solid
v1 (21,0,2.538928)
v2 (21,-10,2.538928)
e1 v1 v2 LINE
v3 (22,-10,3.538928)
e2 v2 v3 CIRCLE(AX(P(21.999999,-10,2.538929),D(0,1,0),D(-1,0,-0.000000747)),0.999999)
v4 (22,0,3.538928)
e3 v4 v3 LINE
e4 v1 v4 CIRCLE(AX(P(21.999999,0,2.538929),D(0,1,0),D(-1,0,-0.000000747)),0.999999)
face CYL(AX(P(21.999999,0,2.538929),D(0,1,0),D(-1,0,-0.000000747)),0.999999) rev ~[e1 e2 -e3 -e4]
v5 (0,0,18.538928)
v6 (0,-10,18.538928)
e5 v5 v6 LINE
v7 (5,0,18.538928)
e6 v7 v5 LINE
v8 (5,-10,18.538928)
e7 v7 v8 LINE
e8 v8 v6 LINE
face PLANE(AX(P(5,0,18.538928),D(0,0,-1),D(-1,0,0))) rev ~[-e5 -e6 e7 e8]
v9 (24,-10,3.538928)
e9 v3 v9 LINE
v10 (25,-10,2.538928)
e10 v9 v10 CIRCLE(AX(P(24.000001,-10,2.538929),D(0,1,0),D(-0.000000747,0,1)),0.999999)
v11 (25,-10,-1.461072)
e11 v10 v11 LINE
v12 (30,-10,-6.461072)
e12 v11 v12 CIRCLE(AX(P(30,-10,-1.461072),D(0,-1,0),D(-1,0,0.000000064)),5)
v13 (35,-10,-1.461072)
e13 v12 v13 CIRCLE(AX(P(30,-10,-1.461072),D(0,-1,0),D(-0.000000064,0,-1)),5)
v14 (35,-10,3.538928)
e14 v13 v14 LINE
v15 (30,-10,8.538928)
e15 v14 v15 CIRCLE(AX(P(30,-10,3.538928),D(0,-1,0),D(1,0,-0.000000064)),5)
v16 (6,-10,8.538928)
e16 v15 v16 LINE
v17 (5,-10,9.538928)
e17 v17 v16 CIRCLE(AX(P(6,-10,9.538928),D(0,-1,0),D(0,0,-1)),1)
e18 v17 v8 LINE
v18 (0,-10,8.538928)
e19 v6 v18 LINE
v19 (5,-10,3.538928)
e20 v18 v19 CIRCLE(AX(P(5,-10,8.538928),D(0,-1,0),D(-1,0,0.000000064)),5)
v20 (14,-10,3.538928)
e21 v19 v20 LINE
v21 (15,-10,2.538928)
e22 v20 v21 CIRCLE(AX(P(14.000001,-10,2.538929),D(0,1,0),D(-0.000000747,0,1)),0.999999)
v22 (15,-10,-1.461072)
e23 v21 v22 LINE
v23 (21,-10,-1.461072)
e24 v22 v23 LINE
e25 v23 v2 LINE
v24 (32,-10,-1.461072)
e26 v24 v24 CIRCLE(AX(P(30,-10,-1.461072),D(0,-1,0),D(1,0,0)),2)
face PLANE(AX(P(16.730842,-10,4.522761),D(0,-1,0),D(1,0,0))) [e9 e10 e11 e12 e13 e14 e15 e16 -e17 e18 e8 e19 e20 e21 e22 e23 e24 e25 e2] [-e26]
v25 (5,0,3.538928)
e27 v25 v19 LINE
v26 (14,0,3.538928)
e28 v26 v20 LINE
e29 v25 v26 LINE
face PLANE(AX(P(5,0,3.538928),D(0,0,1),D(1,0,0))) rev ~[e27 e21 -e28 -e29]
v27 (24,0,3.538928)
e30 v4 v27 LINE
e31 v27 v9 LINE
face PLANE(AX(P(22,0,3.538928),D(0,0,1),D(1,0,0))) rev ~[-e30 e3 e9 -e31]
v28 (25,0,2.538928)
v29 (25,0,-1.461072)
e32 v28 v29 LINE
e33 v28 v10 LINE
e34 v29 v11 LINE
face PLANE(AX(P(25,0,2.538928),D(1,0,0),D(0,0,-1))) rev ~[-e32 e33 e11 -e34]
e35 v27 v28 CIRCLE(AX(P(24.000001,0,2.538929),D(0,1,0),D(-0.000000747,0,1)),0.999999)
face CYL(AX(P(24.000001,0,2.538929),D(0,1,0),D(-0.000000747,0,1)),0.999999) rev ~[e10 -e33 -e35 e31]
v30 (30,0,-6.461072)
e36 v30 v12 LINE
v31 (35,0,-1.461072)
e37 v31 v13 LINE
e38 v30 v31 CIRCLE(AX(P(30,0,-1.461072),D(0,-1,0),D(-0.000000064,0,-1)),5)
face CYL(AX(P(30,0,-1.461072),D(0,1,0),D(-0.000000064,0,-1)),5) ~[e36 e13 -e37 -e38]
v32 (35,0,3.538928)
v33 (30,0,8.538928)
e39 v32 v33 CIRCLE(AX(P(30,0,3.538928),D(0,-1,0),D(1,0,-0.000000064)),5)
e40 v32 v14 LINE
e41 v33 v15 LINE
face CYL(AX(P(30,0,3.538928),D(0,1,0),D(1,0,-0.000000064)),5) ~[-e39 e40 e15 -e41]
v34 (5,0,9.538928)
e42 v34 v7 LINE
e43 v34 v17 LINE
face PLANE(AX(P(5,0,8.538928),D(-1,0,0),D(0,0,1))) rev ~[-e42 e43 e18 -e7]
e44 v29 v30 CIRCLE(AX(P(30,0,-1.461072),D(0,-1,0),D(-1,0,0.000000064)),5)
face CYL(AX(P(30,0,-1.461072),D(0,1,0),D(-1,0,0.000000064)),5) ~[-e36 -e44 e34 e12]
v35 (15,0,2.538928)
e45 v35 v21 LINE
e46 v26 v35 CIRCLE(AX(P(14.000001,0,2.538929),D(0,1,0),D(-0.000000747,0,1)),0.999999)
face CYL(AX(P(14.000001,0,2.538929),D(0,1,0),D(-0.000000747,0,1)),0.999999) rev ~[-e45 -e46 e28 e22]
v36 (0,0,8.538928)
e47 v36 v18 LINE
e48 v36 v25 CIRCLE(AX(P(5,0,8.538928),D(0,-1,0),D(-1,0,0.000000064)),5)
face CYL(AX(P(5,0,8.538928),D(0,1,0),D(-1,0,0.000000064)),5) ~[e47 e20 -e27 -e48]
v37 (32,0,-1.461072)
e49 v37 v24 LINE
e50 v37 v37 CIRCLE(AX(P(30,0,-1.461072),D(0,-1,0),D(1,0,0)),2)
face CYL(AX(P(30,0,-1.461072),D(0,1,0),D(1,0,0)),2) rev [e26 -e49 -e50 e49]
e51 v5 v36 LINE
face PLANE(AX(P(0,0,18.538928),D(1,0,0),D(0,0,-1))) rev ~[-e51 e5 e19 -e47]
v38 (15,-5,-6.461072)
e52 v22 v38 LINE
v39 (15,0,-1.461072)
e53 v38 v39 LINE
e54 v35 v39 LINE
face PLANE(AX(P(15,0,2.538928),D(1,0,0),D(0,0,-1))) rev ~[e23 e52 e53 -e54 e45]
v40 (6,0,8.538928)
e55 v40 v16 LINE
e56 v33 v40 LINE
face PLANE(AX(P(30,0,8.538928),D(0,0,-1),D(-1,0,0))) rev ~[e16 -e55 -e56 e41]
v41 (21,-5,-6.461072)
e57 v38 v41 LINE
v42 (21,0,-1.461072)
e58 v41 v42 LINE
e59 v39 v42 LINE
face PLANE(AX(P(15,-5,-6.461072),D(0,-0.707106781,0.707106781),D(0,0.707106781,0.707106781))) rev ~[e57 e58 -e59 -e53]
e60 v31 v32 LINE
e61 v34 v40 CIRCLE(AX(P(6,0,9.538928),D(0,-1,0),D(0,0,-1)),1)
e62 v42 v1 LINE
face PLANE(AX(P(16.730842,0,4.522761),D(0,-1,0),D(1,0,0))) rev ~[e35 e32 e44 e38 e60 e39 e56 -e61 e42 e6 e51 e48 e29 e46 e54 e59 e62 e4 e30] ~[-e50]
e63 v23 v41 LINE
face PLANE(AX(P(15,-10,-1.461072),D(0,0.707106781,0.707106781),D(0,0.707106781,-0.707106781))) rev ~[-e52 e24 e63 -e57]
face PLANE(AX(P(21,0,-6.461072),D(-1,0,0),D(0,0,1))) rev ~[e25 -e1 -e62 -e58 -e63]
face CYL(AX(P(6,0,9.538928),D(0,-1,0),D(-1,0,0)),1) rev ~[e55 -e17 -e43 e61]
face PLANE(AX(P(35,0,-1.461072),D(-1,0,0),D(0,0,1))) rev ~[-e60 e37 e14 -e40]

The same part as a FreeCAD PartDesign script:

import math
import FreeCAD as App
import Part
import Sketcher
from FreeCAD import Vector
Q = App.Units.Quantity


def edges_at(feature, points):
    """Names of the edges that pass closest to the given points."""
    edges = feature.Shape.Edges
    near = lambda p: min(range(len(edges)), key=lambda i: edges[i].distToShape(Part.Vertex(*p))[0])
    return sorted({f"Edge{near(p) + 1}" for p in points})

doc = App.newDocument("Part")
body = doc.addObject("PartDesign::Body", "Body")

# Sketch on XZ plane
sketch1 = body.newObject("Sketcher::SketchObject", "Sketch")
sketch1.AttachmentSupport = (doc.getObject("XZ_Plane"), [""])
sketch1.MapMode = "FlatFace"
sketch1.addGeometry([
    Part.LineSegment(Vector(5, 18.538928, 0), Vector(0, 18.538928, 0)),  # 0
    Part.LineSegment(Vector(0, 18.538928, 0), Vector(0, 8.538928, 0)),  # 1
    Part.ArcOfCircle(Part.Circle(Vector(5, 8.538928, 0), Vector(0, 0, 1), 5), math.radians(179.999996), math.radians(270.000004)),  # 2
    Part.LineSegment(Vector(5, 3.538928, 0), Vector(14, 3.538928, 0)),  # 3
    Part.ArcOfCircle(Part.Circle(Vector(14.000001, 2.538929, 0), Vector(0, 0, 1), 0.999999), math.radians(-0.000043), math.radians(90.000043)),  # 4
    Part.LineSegment(Vector(15, 2.538928, 0), Vector(15, -6.461072, 0)),  # 5
    Part.LineSegment(Vector(15, -6.461072, 0), Vector(21, -6.461072, 0)),  # 6
    Part.LineSegment(Vector(21, -6.461072, 0), Vector(21, 2.538928, 0)),  # 7
    Part.ArcOfCircle(Part.Circle(Vector(21.999999, 2.538929, 0), Vector(0, 0, 1), 0.999999), math.radians(89.999957), math.radians(180.000043)),  # 8
    Part.LineSegment(Vector(22, 3.538928, 0), Vector(24, 3.538928, 0)),  # 9
    Part.ArcOfCircle(Part.Circle(Vector(24.000001, 2.538929, 0), Vector(0, 0, 1), 0.999999), math.radians(-0.000043), math.radians(90.000043)),  # 10
    Part.LineSegment(Vector(25, 2.538928, 0), Vector(25, -1.461072, 0)),  # 11
    Part.ArcOfCircle(Part.Circle(Vector(30, -1.461072, 0), Vector(0, 0, 1), 5), math.radians(179.999996), math.radians(270.000004)),  # 12
    Part.ArcOfCircle(Part.Circle(Vector(30, -1.461072, 0), Vector(0, 0, 1), 5), math.radians(-90.000004), math.radians(0.000004)),  # 13
    Part.LineSegment(Vector(35, -1.461072, 0), Vector(35, 3.538928, 0)),  # 14
    Part.ArcOfCircle(Part.Circle(Vector(30, 3.538928, 0), Vector(0, 0, 1), 5), math.radians(-0.000004), math.radians(90.000004)),  # 15
    Part.LineSegment(Vector(30, 8.538928, 0), Vector(5, 8.538928, 0)),  # 16
    Part.LineSegment(Vector(5, 8.538928, 0), Vector(5, 18.538928, 0)),  # 17
    Part.Circle(Vector(30, -1.461072, 0), Vector(0, 0, 1), 2),  # 18
], False)
sketch1.addConstraint([
    Sketcher.Constraint("Coincident", 0, 2, 1, 1),
    Sketcher.Constraint("Tangent", 1, 2, 2, 1),
    Sketcher.Constraint("Tangent", 2, 2, 3, 1),
    Sketcher.Constraint("Tangent", 3, 2, 4, 2),
    Sketcher.Constraint("Tangent", 4, 1, 5, 1),
    Sketcher.Constraint("Coincident", 5, 2, 6, 1),
    Sketcher.Constraint("Coincident", 6, 2, 7, 1),
    Sketcher.Constraint("Tangent", 7, 2, 8, 2),
    Sketcher.Constraint("Tangent", 8, 1, 9, 1),
    Sketcher.Constraint("Tangent", 9, 2, 10, 2),
    Sketcher.Constraint("Tangent", 10, 1, 11, 1),
    Sketcher.Constraint("Tangent", 11, 2, 12, 1),
    Sketcher.Constraint("Tangent", 12, 2, 13, 1),
    Sketcher.Constraint("Tangent", 13, 2, 14, 1),
    Sketcher.Constraint("Tangent", 14, 2, 15, 1),
    Sketcher.Constraint("Tangent", 15, 2, 16, 1),
    Sketcher.Constraint("Coincident", 16, 2, 17, 1),
    Sketcher.Constraint("Coincident", 17, 2, 0, 1),
    Sketcher.Constraint("Horizontal", 0),
    Sketcher.Constraint("Vertical", 1),
    Sketcher.Constraint("Horizontal", 3),
    Sketcher.Constraint("Vertical", 5),
    Sketcher.Constraint("Horizontal", 6),
    Sketcher.Constraint("Vertical", 7),
    Sketcher.Constraint("Horizontal", 9),
    Sketcher.Constraint("Vertical", 11),
    Sketcher.Constraint("Vertical", 14),
    Sketcher.Constraint("Horizontal", 16),
    Sketcher.Constraint("Vertical", 17),
    Sketcher.Constraint("Coincident", 18, 3, 12, 3),
    Sketcher.Constraint("Coincident", 16, 2, 2, 3),
    Sketcher.Constraint("Equal", 4, 8),
    Sketcher.Constraint("Equal", 8, 10),
    Sketcher.Constraint("Equal", 2, 12),
    Sketcher.Constraint("Equal", 12, 13),
    Sketcher.Constraint("Equal", 13, 15),
    Sketcher.Constraint("PointOnObject", 0, 2, -2),
    Sketcher.Constraint("Horizontal", 4, 3, 8, 3),
    Sketcher.Constraint("Horizontal", 6, 2, 12, 2),
    Sketcher.Constraint("Vertical", 18, 3, 12, 2),
    Sketcher.Constraint("Equal", 3, 5),
    Sketcher.Constraint("Equal", 0, 14),
    Sketcher.Constraint("Diameter", 18, Q("4 mm")),
    Sketcher.Constraint("Radius", 2, Q("5 mm")),
    Sketcher.Constraint("Radius", 4, Q("0.999999 mm")),
    Sketcher.Constraint("DistanceX", 6, 1, 6, 2, Q("6 mm")),
    Sketcher.Constraint("DistanceX", 9, 1, 9, 2, Q("2 mm")),
    Sketcher.Constraint("DistanceY", 1, 2, 1, 1, Q("10 mm")),
    Sketcher.Constraint("DistanceY", -1, 1, 4, 3, Q("2.538929 mm")),
])
pad1 = body.newObject("PartDesign::Pad", "Pad")
pad1.Profile = sketch1
pad1.Length = 10
doc.recompute()

fillet = body.newObject("PartDesign::Fillet", "Fillet")
fillet.Base = (pad1, edges_at(pad1, [(5, -5, 8.539)]))
fillet.Radius = 1

# Sketch on YZ plane
sketch2 = body.newObject("Sketcher::SketchObject", "Sketch001")
sketch2.AttachmentSupport = (doc.getObject("YZ_Plane"), [""])
sketch2.MapMode = "FlatFace"
sketch2.AttachmentOffset = App.Placement(Vector(0, 0, 15), App.Rotation())
sketch2.addGeometry([
    Part.LineSegment(Vector(0, -6.461072, 0), Vector(-5, -6.461072, 0)),  # 0
    Part.LineSegment(Vector(-5, -6.461072, 0), Vector(0, -1.461072, 0)),  # 1
    Part.LineSegment(Vector(0, -1.461072, 0), Vector(0, -6.461072, 0)),  # 2
    Part.LineSegment(Vector(-10, -1.461072, 0), Vector(-5, -6.461072, 0)),  # 3
    Part.LineSegment(Vector(-5, -6.461072, 0), Vector(-10, -6.461072, 0)),  # 4
    Part.LineSegment(Vector(-10, -6.461072, 0), Vector(-10, -1.461072, 0)),  # 5
], False)
sketch2.addConstraint([
    Sketcher.Constraint("Coincident", 0, 2, 1, 1),
    Sketcher.Constraint("Coincident", 1, 2, 2, 1),
    Sketcher.Constraint("Coincident", 2, 2, 0, 1),
    Sketcher.Constraint("Coincident", 3, 2, 4, 1),
    Sketcher.Constraint("Coincident", 4, 2, 5, 1),
    Sketcher.Constraint("Coincident", 5, 2, 3, 1),
    Sketcher.Constraint("Horizontal", 0),
    Sketcher.Constraint("Vertical", 2),
    Sketcher.Constraint("Horizontal", 4),
    Sketcher.Constraint("Vertical", 5),
    Sketcher.Constraint("Coincident", 3, 2, 0, 2),
    Sketcher.Constraint("PointOnObject", 1, 2, -2),
    Sketcher.Constraint("Perpendicular", 1, 3),
    Sketcher.Constraint("Horizontal", 1, 2, 5, 2),
    Sketcher.Constraint("Equal", 0, 4),
    Sketcher.Constraint("DistanceX", 0, 2, 0, 1, Q("5 mm")),
    Sketcher.Constraint("DistanceY", 0, 2, -1, 1, Q("6.461072 mm")),
])
pocket1 = body.newObject("PartDesign::Pocket", "Pocket")
pocket1.Profile = sketch2
pocket1.Length = 6
pocket1.Reversed = True

doc.recompute()
